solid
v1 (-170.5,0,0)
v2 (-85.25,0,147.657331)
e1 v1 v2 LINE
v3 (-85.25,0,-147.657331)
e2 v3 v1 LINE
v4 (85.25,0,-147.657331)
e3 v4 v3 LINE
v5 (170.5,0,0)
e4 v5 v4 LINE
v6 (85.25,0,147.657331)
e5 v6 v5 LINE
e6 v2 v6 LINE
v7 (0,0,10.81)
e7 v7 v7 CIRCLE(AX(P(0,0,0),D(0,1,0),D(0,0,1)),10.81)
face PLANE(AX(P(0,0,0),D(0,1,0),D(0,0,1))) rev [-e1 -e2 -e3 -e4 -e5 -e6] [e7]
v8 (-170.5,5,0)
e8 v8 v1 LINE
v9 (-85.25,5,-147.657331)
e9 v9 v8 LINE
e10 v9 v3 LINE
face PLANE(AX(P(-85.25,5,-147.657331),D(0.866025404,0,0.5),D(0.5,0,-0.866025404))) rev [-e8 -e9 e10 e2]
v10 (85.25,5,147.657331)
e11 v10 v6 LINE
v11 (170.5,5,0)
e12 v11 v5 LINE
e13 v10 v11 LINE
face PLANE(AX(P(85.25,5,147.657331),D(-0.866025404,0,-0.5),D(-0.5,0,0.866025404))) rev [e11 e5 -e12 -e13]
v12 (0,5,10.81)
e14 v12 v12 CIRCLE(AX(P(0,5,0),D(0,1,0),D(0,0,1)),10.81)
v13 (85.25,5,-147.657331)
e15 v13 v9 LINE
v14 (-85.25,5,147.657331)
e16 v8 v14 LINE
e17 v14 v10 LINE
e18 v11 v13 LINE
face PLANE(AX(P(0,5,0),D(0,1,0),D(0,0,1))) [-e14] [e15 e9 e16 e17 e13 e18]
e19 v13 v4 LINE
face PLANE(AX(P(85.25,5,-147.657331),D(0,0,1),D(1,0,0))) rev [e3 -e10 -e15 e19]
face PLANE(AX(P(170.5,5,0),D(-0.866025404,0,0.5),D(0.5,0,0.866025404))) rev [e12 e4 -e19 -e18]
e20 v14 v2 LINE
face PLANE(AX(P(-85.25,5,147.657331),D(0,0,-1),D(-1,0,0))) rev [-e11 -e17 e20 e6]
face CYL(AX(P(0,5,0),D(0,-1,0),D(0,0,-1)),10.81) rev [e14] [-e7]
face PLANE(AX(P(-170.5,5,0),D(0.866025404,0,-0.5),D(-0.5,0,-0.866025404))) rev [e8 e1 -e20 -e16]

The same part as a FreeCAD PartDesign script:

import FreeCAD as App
import Part
import Sketcher
from FreeCAD import Vector
Q = App.Units.Quantity


def add_polygon(sketch, points):
    """Adds a closed chain of lines whose ends are joined by coincident constraints."""
    first, n = sketch.GeometryCount, len(points)
    for a, b in zip(points, points[1:] + points[:1]):
        sketch.addGeometry(Part.LineSegment(App.Vector(*a, 0), App.Vector(*b, 0)), False)
    for i in range(n):
        sketch.addConstraint(Sketcher.Constraint("Coincident", first + i, 2, first + (i + 1) % n, 1))

doc = App.newDocument("Part")
body = doc.addObject("PartDesign::Body", "Body")

sketch1 = body.newObject("Sketcher::SketchObject", "Sketch")
sketch1.AttachmentSupport = (doc.getObject("XZ_Plane"), [""])
sketch1.MapMode = "FlatFace"
add_polygon(sketch1, [(85.25, 147.657331), (170.5, 0), (85.25, -147.657331), (-85.25, -147.657331), (-170.5, 0), (-85.25, 147.657331)])
sketch1.addGeometry(Part.Circle(Vector(0, 0, 0), Vector(0, 0, 1), 10.81), False)
sketch1.addConstraint([
    Sketcher.Constraint("Horizontal", 2),
    Sketcher.Constraint("Horizontal", 5),
    Sketcher.Constraint("Coincident", 6, 3, -1, 1),
    Sketcher.Constraint("Symmetric", 0, 2, 3, 2, -1, 1),
    Sketcher.Constraint("Symmetric", 1, 2, 4, 2, -1, 1),
    Sketcher.Constraint("PointOnObject", 0, 2, -1),
    Sketcher.Constraint("Parallel", 0, 3),
    Sketcher.Constraint("Vertical", 2, 2, 4, 2),
    Sketcher.Constraint("Diameter", 6, Q("21.62 mm")),
    Sketcher.Constraint("Angle", 0, Q("-60 deg")),
    Sketcher.Constraint("DistanceX", 2, 2, 2, 1, Q("170.5 mm")),
    Sketcher.Constraint("DistanceX", 3, 2, 0, 2, Q("341 mm")),
])
pad1 = body.newObject("PartDesign::Pad", "Pad")
pad1.Profile = sketch1
pad1.Length = 5
pad1.Reversed = True

doc.recompute()
